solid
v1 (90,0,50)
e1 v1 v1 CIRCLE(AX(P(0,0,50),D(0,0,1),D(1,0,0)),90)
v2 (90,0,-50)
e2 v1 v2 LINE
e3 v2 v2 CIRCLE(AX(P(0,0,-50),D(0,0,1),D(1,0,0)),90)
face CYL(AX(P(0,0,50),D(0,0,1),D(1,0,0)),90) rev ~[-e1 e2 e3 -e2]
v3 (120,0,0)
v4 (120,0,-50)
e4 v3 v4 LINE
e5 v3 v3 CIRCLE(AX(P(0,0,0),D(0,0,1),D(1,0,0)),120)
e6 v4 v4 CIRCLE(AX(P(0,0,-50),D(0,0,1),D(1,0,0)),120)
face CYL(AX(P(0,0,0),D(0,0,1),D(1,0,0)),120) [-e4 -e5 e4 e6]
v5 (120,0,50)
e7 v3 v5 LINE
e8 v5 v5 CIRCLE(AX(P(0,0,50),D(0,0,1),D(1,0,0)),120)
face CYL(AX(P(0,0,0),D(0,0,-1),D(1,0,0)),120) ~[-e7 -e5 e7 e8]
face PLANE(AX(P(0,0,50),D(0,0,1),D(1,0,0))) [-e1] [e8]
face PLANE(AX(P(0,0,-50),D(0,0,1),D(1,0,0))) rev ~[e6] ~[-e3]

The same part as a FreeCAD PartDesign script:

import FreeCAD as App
import Part
import Sketcher

doc = App.newDocument("Part")
body = doc.addObject("PartDesign::Body", "Body")

# Sketch on XY plane
sketch1 = body.newObject("Sketcher::SketchObject", "Sketch")
sketch1.AttachmentSupport = (doc.getObject("XY_Plane"), [""])
sketch1.MapMode = "FlatFace"
sketch1.addGeometry(Part.Circle(App.Vector(0, 0, 0), App.Vector(0, 0, 1), 120), False)
sketch1.addConstraint(Sketcher.Constraint("Coincident", 0, 3, -1, 1))
sketch1.addConstraint(Sketcher.Constraint("Diameter", 0, 240.0))
pad1 = body.newObject("PartDesign::Pad", "Pad")
pad1.Profile = sketch1
pad1.Length = 100
pad1.Midplane = True

# Sketch on XY plane
sketch2 = body.newObject("Sketcher::SketchObject", "Sketch001")
sketch2.AttachmentSupport = (doc.getObject("XY_Plane"), [""])
sketch2.MapMode = "FlatFace"
sketch2.AttachmentOffset = App.Placement(App.Vector(0, 0, 50), App.Rotation())
sketch2.addGeometry(Part.Circle(App.Vector(0, 0, 0), App.Vector(0, 0, 1), 90), False)
sketch2.addConstraint(Sketcher.Constraint("Coincident", 0, 3, -1, 1))
sketch2.addConstraint(Sketcher.Constraint("Diameter", 0, 180.0))
pocket1 = body.newObject("PartDesign::Pocket", "Pocket")
pocket1.Profile = sketch2
pocket1.Type = "ThroughAll"

doc.recompute()
